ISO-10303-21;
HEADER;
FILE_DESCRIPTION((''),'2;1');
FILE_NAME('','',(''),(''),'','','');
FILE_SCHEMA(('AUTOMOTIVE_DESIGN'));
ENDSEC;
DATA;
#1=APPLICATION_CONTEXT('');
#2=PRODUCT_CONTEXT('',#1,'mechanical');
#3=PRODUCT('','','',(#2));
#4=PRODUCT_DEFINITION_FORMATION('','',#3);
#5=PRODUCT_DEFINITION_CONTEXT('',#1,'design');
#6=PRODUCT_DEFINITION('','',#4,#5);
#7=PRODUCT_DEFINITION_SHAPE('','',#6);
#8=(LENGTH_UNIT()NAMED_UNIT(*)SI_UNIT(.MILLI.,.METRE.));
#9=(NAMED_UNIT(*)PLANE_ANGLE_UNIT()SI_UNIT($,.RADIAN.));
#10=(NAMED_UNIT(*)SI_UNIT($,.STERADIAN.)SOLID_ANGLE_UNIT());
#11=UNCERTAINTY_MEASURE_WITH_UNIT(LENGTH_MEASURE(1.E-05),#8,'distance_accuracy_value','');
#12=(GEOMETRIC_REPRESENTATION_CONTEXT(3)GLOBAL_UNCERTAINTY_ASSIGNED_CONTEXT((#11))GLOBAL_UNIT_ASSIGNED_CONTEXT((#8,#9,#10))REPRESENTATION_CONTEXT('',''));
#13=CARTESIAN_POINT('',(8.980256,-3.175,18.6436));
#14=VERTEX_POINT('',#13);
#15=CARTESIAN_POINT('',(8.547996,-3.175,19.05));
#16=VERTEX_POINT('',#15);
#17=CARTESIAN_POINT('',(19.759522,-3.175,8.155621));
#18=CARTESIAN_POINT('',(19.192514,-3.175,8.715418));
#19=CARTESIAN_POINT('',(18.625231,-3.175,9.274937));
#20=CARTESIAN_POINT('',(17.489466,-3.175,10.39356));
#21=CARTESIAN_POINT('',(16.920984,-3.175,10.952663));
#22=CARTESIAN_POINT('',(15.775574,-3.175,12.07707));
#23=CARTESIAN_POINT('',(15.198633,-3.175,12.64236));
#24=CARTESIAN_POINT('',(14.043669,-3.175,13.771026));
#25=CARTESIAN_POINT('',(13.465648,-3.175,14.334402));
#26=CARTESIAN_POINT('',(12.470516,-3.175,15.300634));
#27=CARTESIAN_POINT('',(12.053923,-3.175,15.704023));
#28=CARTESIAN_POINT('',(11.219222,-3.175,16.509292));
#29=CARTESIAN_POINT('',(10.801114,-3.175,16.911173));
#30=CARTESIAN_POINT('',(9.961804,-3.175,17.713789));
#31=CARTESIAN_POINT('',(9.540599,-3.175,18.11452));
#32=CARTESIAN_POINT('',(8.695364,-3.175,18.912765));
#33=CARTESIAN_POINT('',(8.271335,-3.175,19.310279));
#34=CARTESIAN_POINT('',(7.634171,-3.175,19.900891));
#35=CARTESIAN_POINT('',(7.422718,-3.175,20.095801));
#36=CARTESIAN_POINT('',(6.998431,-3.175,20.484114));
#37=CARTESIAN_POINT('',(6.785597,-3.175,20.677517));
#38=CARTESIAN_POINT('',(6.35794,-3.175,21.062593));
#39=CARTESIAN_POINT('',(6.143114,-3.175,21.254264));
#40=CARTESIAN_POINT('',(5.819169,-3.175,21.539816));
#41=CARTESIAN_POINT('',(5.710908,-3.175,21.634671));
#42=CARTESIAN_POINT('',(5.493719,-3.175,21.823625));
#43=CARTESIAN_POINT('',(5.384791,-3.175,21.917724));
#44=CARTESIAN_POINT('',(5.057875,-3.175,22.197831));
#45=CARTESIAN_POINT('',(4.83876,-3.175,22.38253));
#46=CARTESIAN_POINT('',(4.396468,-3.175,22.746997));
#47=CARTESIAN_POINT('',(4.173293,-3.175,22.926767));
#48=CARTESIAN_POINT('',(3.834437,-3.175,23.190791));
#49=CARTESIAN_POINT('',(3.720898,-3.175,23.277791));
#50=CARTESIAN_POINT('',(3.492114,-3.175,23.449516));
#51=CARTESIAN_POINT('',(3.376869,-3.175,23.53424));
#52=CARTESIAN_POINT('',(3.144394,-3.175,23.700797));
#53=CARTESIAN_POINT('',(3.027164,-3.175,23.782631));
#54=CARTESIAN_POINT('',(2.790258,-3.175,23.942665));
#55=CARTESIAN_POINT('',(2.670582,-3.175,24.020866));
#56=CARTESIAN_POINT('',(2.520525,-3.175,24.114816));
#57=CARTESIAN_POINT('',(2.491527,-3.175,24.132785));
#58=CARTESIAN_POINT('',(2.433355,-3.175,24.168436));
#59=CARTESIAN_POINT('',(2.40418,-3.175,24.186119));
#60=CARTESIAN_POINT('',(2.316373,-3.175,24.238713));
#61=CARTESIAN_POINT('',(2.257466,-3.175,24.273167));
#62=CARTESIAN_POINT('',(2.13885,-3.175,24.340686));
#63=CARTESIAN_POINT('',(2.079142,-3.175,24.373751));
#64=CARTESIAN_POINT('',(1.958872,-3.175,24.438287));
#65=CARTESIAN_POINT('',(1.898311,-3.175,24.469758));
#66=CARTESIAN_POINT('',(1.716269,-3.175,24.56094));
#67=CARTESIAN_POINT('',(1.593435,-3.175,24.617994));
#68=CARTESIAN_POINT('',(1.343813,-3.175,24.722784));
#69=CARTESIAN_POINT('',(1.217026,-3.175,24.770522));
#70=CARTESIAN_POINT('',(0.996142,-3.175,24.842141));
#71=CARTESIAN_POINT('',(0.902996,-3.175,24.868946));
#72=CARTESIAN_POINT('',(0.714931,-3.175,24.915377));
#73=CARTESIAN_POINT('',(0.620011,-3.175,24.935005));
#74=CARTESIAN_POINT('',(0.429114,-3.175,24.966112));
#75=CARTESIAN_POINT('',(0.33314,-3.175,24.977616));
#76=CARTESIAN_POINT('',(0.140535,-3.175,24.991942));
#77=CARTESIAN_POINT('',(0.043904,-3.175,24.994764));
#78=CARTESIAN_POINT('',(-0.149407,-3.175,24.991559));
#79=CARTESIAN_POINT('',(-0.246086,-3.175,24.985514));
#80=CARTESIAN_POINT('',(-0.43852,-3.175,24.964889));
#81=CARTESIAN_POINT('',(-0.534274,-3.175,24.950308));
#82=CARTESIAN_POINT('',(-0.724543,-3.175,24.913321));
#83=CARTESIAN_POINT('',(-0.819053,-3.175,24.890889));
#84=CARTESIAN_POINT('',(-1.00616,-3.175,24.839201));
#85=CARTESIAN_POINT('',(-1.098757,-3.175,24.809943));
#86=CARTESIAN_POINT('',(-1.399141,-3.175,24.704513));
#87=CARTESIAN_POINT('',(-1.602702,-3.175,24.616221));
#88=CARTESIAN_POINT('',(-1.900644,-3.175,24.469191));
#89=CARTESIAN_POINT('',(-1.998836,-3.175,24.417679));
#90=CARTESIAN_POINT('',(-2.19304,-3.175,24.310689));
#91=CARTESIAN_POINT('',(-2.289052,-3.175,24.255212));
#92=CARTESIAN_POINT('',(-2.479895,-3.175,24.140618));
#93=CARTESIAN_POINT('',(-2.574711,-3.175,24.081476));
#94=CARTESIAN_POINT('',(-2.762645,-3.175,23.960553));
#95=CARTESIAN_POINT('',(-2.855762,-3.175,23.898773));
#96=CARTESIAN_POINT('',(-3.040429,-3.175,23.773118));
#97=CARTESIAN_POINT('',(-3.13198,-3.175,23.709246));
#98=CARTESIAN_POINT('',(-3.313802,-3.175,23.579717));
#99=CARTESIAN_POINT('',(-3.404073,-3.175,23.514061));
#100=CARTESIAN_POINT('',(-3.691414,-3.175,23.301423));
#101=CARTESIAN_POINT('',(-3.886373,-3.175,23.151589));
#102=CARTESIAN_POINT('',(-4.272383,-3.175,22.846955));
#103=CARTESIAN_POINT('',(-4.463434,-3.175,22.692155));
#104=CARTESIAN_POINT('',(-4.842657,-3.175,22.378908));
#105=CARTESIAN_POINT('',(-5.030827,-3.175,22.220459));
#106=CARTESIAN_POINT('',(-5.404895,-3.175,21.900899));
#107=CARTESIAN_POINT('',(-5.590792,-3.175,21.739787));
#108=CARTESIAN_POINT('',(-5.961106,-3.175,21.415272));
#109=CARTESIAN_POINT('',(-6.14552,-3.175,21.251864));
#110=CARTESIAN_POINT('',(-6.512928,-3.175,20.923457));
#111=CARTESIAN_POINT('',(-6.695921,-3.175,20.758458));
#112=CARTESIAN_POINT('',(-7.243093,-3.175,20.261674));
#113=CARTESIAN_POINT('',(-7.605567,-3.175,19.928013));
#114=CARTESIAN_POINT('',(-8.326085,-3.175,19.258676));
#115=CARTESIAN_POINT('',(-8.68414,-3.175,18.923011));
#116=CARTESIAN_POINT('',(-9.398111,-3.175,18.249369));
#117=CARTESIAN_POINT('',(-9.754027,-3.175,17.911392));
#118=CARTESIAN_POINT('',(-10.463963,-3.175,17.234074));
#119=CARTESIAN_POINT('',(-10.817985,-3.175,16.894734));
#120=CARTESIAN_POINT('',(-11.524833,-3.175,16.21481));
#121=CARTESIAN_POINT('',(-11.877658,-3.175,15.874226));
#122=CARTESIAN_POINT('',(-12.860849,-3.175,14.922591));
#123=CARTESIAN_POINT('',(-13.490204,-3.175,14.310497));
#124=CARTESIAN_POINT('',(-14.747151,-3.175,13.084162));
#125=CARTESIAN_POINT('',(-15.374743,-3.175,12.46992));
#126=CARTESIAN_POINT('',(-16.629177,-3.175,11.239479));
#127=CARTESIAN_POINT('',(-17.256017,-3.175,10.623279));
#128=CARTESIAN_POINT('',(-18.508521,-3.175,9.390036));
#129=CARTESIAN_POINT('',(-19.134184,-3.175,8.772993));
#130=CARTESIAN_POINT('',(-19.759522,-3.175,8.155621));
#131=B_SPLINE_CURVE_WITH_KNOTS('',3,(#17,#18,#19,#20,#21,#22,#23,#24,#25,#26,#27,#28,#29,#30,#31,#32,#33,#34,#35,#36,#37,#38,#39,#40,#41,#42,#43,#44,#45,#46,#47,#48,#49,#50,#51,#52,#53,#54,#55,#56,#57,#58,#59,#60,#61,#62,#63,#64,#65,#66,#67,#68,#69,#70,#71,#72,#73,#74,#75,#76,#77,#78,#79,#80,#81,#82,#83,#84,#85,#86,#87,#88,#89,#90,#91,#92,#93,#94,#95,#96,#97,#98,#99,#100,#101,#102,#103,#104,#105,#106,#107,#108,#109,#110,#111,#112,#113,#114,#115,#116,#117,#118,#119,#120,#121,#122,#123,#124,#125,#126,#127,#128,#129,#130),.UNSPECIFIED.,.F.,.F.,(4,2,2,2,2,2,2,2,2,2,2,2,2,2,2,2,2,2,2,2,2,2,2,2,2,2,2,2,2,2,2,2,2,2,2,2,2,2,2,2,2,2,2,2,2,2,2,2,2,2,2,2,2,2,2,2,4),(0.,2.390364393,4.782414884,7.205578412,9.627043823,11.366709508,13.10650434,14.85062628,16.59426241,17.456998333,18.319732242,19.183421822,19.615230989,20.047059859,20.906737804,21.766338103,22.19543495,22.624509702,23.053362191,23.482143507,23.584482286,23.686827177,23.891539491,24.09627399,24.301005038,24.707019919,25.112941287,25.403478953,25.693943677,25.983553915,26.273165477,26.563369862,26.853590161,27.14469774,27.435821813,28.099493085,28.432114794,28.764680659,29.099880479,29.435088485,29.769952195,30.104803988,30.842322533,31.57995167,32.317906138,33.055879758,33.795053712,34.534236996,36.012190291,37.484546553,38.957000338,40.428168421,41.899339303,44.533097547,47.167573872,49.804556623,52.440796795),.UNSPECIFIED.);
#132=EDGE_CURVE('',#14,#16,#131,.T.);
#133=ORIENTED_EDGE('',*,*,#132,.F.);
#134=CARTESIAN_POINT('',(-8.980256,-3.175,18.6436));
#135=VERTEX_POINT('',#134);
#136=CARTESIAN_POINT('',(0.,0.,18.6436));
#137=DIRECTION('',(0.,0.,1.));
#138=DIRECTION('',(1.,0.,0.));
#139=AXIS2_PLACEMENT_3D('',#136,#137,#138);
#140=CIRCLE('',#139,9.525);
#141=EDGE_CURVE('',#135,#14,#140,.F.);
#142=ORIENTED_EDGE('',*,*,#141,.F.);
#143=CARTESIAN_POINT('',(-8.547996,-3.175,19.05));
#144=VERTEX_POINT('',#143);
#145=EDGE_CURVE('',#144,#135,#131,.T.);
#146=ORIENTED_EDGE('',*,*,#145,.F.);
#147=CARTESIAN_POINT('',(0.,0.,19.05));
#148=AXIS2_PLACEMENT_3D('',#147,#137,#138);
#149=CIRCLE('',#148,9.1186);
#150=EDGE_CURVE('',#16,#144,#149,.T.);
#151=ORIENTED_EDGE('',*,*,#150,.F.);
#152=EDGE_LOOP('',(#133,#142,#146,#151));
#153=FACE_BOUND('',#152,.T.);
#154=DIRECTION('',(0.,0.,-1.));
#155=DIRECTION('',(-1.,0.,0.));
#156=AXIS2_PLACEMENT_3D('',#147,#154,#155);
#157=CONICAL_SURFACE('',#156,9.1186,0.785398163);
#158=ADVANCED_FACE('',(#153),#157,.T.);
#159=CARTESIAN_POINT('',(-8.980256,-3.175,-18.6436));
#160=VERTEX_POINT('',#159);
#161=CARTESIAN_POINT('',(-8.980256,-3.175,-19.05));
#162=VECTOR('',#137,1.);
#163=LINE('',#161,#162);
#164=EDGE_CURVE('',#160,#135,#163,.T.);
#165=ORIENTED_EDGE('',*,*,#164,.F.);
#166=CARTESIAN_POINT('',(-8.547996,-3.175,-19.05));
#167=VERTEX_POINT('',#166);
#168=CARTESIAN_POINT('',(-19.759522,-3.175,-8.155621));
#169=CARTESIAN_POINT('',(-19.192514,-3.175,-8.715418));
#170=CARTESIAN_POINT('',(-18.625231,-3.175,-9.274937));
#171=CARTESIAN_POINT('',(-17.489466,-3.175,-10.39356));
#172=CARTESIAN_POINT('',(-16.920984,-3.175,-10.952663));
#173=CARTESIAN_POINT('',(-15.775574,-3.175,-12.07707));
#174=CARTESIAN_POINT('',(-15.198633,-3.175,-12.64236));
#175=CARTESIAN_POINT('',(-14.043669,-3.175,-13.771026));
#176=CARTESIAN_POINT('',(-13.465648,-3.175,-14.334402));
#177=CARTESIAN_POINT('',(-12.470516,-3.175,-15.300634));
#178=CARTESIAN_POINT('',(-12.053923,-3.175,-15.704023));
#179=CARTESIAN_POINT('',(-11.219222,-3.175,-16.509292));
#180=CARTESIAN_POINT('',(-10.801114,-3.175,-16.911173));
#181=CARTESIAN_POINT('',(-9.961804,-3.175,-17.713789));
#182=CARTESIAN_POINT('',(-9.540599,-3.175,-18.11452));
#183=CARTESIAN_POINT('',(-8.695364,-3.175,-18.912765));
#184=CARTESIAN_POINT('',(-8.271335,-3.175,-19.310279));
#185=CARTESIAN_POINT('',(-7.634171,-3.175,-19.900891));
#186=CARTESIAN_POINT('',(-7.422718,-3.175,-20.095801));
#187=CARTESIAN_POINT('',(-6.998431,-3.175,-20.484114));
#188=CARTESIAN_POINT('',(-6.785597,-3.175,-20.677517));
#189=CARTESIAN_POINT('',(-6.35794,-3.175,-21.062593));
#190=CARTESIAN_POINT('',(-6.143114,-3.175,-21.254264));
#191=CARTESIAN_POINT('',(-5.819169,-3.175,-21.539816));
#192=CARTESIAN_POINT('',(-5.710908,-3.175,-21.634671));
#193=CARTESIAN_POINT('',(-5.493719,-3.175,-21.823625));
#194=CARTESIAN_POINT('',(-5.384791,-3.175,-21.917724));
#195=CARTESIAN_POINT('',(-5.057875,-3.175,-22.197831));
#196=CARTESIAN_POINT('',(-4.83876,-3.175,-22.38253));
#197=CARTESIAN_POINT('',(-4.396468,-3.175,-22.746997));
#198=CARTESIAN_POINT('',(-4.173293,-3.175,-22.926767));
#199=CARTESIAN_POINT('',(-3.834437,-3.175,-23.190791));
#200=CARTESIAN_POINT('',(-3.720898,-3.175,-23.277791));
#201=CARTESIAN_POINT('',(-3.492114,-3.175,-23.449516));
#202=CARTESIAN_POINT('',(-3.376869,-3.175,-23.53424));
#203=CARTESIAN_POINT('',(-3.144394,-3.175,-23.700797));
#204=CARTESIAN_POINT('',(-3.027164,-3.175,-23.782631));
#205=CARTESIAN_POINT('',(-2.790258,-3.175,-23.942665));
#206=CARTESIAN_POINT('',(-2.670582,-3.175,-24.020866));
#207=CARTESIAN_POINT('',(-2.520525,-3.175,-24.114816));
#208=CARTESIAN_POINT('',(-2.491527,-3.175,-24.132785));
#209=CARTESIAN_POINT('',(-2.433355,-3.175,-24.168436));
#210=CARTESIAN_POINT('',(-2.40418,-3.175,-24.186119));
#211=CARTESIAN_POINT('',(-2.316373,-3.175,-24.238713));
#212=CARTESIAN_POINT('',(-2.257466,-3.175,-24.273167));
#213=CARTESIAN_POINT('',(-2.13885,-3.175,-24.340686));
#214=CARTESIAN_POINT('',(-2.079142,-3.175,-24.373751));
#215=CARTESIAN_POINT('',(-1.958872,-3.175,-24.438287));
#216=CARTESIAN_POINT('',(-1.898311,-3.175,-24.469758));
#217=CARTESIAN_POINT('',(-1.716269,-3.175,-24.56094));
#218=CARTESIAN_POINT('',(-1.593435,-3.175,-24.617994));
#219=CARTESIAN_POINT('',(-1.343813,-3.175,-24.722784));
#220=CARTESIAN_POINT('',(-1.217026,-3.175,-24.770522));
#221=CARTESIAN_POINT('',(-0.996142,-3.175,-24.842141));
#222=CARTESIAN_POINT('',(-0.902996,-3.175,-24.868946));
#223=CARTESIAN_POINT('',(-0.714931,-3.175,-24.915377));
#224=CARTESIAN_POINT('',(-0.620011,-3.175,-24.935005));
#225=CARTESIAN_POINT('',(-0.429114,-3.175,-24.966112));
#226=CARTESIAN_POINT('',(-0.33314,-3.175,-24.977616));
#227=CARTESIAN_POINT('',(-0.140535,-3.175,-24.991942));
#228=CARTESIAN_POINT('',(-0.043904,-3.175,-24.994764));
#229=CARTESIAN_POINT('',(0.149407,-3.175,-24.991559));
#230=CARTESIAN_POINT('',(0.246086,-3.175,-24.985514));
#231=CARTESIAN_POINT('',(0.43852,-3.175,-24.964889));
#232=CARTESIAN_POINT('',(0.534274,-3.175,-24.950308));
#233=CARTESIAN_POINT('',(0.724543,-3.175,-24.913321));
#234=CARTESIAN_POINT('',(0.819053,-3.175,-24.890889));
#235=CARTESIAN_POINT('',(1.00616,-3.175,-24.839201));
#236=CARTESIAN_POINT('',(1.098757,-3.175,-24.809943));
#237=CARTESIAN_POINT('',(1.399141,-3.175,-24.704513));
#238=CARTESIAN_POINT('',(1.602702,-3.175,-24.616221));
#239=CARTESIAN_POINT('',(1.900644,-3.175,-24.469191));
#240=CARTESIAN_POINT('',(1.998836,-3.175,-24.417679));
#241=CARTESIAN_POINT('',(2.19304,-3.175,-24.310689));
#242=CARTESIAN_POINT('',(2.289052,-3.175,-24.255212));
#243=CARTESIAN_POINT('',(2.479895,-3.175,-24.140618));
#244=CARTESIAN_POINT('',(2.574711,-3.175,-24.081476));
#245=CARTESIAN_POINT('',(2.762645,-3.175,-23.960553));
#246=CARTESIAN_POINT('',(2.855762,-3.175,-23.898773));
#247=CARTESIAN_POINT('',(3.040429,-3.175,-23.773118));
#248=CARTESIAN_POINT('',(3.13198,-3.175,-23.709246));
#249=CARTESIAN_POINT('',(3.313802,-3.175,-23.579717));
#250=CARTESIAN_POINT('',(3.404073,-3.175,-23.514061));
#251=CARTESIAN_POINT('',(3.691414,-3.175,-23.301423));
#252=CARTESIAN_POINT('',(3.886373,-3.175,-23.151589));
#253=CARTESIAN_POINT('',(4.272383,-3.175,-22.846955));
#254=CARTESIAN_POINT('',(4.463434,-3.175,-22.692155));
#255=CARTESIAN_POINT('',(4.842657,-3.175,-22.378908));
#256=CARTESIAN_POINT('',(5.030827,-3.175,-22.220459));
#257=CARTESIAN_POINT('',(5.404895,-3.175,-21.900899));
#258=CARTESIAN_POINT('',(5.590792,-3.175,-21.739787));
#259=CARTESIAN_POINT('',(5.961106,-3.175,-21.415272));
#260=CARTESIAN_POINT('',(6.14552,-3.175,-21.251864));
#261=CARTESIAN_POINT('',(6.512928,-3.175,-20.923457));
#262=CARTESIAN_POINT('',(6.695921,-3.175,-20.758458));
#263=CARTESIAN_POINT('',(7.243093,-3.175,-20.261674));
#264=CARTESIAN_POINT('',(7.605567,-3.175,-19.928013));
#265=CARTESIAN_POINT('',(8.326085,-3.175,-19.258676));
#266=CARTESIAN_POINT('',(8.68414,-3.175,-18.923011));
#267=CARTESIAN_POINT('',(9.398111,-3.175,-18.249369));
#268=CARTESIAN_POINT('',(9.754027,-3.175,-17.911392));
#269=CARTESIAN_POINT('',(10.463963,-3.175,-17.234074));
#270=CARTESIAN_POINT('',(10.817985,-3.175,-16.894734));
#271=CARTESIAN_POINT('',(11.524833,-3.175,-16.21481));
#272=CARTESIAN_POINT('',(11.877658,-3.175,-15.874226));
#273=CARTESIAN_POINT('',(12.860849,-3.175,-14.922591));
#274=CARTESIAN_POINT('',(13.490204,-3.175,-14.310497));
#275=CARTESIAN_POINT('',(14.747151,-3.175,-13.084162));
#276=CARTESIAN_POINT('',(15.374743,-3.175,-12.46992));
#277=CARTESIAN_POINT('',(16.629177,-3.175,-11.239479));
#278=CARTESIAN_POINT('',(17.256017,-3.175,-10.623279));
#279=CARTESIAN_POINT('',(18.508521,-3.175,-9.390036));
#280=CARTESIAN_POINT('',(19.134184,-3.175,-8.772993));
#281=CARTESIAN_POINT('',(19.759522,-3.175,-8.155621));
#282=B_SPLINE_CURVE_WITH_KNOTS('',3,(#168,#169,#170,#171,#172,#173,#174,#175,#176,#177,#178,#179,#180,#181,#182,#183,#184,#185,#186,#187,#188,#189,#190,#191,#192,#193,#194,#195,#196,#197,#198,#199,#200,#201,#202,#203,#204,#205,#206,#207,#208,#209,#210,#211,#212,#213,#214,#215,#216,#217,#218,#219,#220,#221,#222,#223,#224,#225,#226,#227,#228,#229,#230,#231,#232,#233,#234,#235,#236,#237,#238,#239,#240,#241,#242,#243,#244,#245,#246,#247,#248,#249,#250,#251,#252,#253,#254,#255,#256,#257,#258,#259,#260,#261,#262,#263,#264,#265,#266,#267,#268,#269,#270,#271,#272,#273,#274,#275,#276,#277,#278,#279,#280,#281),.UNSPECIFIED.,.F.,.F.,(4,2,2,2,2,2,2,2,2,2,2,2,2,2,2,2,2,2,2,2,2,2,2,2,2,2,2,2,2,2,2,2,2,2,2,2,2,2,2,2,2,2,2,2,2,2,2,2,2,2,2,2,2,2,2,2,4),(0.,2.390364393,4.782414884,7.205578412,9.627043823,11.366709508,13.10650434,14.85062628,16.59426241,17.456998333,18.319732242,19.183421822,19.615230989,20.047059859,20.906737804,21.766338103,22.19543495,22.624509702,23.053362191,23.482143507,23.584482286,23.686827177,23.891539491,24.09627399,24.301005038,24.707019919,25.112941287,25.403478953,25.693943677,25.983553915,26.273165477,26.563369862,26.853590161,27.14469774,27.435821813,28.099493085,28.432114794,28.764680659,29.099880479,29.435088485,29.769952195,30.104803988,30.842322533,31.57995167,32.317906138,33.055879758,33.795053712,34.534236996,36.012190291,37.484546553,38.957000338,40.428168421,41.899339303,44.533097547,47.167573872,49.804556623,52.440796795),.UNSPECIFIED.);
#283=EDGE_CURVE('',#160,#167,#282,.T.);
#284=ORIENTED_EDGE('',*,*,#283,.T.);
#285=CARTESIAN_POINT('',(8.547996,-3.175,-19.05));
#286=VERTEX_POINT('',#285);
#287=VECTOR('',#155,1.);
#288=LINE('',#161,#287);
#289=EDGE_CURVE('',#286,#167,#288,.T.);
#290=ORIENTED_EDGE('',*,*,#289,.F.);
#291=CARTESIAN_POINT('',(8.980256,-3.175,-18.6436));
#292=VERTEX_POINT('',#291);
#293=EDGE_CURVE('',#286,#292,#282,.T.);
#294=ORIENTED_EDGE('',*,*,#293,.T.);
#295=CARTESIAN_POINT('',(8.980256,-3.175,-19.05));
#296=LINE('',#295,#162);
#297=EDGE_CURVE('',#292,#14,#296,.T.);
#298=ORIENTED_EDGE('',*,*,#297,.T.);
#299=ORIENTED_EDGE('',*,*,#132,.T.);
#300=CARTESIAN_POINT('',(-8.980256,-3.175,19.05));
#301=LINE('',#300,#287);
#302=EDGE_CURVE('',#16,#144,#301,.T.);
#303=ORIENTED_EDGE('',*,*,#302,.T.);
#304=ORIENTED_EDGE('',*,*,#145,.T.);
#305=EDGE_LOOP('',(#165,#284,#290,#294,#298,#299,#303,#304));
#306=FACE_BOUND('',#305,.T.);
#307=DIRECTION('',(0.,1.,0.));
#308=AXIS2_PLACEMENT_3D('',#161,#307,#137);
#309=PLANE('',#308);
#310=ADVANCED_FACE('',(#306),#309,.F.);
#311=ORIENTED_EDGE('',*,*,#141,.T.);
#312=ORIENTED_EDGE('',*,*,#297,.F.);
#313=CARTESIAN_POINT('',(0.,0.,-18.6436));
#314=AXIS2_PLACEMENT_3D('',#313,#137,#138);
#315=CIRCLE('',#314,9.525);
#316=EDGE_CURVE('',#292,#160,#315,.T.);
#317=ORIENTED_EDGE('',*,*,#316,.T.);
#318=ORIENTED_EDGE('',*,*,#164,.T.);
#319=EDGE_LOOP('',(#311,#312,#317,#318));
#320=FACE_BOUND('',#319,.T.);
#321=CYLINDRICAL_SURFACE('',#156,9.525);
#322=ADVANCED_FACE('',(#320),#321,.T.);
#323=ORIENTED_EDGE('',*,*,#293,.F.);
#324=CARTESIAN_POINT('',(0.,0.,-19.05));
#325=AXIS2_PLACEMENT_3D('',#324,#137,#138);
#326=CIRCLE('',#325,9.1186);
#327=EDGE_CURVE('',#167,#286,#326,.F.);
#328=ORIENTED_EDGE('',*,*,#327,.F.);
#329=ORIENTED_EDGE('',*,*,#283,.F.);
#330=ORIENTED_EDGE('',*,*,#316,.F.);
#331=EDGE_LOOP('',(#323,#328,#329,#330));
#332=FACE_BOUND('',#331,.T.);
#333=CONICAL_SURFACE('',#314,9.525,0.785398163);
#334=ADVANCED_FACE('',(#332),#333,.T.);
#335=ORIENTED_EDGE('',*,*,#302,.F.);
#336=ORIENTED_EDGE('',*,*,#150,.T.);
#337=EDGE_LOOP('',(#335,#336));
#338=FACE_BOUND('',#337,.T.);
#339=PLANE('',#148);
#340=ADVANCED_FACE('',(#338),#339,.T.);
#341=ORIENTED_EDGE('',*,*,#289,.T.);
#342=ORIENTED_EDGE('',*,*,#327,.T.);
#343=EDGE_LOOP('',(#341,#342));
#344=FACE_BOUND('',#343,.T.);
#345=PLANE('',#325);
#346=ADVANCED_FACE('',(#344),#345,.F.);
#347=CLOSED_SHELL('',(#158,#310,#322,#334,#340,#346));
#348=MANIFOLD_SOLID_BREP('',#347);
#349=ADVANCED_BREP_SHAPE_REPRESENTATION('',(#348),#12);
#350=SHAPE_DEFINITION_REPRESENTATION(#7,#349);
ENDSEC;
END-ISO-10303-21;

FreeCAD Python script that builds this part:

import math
import FreeCAD as App
import Part
import Sketcher

V = App.Vector
Q = App.Units.Quantity


def edges_at(feature, points):
    """Names of the edges that pass closest to the given points."""
    edges = feature.Shape.Edges
    near = lambda p: min(range(len(edges)), key=lambda i: edges[i].distToShape(Part.Vertex(*p))[0])
    return sorted({f"Edge{near(p) + 1}" for p in points})

doc = App.newDocument("Part")
body = doc.addObject("PartDesign::Body", "Body")

# Sketch on XY plane
sketch1 = body.newObject("Sketcher::SketchObject", "Sketch")
sketch1.AttachmentSupport = (doc.getObject("XY_Plane"), [""])
sketch1.MapMode = "FlatFace"
sketch1.addGeometry(Part.Circle(V(0, 0, 0), V(0, 0, 1), 10), False)
sketch1.addConstraint(Sketcher.Constraint("Coincident", 0, 3, -1, 1))
sketch1.addConstraint(Sketcher.Constraint("Diameter", 0, Q("0.75 in")))
pad1 = body.newObject("PartDesign::Pad", "Pad")
pad1.Profile = sketch1
pad1.Length = Q("1.5 in")
pad1.Midplane = True
doc.recompute()

chamfer = body.newObject("PartDesign::Chamfer", "Chamfer")
chamfer.Base = (pad1, edges_at(pad1, [(-9.525, 0, -19.05), (-9.525, 0, 19.05)]))
chamfer.Size = Q("0.016 in")

# Sketch on XY plane
sketch2 = body.newObject("Sketcher::SketchObject", "Sketch001")
sketch2.AttachmentSupport = (doc.getObject("XY_Plane"), [""])
sketch2.MapMode = "FlatFace"
sketch2.addGeometry(Part.LineSegment(V(9, -3, 0), V(-9, -3, 0)), False)
sketch2.addGeometry(Part.ArcOfCircle(Part.Circle(V(0, 0, 0), V(0, 0, 1), 10), math.radians(-161), math.radians(-19)), False)
sketch2.addConstraint(Sketcher.Constraint("Coincident", 0, 1, 1, 2))
sketch2.addConstraint(Sketcher.Constraint("Coincident", 1, 1, 0, 2))
sketch2.addConstraint(Sketcher.Constraint("Horizontal", 0))
sketch2.addConstraint(Sketcher.Constraint("Coincident", 1, 3, -1, 1))
sketch2.addConstraint(Sketcher.Constraint("Radius", 1, Q("0.375 in")))
sketch2.addConstraint(Sketcher.Constraint("DistanceY", 0, 1, -1, 1, Q("0.125 in")))
pocket1 = body.newObject("PartDesign::Pocket", "Pocket")
pocket1.Profile = sketch2
pocket1.Type = "ThroughAll"
pocket1.Midplane = True

doc.recompute()
